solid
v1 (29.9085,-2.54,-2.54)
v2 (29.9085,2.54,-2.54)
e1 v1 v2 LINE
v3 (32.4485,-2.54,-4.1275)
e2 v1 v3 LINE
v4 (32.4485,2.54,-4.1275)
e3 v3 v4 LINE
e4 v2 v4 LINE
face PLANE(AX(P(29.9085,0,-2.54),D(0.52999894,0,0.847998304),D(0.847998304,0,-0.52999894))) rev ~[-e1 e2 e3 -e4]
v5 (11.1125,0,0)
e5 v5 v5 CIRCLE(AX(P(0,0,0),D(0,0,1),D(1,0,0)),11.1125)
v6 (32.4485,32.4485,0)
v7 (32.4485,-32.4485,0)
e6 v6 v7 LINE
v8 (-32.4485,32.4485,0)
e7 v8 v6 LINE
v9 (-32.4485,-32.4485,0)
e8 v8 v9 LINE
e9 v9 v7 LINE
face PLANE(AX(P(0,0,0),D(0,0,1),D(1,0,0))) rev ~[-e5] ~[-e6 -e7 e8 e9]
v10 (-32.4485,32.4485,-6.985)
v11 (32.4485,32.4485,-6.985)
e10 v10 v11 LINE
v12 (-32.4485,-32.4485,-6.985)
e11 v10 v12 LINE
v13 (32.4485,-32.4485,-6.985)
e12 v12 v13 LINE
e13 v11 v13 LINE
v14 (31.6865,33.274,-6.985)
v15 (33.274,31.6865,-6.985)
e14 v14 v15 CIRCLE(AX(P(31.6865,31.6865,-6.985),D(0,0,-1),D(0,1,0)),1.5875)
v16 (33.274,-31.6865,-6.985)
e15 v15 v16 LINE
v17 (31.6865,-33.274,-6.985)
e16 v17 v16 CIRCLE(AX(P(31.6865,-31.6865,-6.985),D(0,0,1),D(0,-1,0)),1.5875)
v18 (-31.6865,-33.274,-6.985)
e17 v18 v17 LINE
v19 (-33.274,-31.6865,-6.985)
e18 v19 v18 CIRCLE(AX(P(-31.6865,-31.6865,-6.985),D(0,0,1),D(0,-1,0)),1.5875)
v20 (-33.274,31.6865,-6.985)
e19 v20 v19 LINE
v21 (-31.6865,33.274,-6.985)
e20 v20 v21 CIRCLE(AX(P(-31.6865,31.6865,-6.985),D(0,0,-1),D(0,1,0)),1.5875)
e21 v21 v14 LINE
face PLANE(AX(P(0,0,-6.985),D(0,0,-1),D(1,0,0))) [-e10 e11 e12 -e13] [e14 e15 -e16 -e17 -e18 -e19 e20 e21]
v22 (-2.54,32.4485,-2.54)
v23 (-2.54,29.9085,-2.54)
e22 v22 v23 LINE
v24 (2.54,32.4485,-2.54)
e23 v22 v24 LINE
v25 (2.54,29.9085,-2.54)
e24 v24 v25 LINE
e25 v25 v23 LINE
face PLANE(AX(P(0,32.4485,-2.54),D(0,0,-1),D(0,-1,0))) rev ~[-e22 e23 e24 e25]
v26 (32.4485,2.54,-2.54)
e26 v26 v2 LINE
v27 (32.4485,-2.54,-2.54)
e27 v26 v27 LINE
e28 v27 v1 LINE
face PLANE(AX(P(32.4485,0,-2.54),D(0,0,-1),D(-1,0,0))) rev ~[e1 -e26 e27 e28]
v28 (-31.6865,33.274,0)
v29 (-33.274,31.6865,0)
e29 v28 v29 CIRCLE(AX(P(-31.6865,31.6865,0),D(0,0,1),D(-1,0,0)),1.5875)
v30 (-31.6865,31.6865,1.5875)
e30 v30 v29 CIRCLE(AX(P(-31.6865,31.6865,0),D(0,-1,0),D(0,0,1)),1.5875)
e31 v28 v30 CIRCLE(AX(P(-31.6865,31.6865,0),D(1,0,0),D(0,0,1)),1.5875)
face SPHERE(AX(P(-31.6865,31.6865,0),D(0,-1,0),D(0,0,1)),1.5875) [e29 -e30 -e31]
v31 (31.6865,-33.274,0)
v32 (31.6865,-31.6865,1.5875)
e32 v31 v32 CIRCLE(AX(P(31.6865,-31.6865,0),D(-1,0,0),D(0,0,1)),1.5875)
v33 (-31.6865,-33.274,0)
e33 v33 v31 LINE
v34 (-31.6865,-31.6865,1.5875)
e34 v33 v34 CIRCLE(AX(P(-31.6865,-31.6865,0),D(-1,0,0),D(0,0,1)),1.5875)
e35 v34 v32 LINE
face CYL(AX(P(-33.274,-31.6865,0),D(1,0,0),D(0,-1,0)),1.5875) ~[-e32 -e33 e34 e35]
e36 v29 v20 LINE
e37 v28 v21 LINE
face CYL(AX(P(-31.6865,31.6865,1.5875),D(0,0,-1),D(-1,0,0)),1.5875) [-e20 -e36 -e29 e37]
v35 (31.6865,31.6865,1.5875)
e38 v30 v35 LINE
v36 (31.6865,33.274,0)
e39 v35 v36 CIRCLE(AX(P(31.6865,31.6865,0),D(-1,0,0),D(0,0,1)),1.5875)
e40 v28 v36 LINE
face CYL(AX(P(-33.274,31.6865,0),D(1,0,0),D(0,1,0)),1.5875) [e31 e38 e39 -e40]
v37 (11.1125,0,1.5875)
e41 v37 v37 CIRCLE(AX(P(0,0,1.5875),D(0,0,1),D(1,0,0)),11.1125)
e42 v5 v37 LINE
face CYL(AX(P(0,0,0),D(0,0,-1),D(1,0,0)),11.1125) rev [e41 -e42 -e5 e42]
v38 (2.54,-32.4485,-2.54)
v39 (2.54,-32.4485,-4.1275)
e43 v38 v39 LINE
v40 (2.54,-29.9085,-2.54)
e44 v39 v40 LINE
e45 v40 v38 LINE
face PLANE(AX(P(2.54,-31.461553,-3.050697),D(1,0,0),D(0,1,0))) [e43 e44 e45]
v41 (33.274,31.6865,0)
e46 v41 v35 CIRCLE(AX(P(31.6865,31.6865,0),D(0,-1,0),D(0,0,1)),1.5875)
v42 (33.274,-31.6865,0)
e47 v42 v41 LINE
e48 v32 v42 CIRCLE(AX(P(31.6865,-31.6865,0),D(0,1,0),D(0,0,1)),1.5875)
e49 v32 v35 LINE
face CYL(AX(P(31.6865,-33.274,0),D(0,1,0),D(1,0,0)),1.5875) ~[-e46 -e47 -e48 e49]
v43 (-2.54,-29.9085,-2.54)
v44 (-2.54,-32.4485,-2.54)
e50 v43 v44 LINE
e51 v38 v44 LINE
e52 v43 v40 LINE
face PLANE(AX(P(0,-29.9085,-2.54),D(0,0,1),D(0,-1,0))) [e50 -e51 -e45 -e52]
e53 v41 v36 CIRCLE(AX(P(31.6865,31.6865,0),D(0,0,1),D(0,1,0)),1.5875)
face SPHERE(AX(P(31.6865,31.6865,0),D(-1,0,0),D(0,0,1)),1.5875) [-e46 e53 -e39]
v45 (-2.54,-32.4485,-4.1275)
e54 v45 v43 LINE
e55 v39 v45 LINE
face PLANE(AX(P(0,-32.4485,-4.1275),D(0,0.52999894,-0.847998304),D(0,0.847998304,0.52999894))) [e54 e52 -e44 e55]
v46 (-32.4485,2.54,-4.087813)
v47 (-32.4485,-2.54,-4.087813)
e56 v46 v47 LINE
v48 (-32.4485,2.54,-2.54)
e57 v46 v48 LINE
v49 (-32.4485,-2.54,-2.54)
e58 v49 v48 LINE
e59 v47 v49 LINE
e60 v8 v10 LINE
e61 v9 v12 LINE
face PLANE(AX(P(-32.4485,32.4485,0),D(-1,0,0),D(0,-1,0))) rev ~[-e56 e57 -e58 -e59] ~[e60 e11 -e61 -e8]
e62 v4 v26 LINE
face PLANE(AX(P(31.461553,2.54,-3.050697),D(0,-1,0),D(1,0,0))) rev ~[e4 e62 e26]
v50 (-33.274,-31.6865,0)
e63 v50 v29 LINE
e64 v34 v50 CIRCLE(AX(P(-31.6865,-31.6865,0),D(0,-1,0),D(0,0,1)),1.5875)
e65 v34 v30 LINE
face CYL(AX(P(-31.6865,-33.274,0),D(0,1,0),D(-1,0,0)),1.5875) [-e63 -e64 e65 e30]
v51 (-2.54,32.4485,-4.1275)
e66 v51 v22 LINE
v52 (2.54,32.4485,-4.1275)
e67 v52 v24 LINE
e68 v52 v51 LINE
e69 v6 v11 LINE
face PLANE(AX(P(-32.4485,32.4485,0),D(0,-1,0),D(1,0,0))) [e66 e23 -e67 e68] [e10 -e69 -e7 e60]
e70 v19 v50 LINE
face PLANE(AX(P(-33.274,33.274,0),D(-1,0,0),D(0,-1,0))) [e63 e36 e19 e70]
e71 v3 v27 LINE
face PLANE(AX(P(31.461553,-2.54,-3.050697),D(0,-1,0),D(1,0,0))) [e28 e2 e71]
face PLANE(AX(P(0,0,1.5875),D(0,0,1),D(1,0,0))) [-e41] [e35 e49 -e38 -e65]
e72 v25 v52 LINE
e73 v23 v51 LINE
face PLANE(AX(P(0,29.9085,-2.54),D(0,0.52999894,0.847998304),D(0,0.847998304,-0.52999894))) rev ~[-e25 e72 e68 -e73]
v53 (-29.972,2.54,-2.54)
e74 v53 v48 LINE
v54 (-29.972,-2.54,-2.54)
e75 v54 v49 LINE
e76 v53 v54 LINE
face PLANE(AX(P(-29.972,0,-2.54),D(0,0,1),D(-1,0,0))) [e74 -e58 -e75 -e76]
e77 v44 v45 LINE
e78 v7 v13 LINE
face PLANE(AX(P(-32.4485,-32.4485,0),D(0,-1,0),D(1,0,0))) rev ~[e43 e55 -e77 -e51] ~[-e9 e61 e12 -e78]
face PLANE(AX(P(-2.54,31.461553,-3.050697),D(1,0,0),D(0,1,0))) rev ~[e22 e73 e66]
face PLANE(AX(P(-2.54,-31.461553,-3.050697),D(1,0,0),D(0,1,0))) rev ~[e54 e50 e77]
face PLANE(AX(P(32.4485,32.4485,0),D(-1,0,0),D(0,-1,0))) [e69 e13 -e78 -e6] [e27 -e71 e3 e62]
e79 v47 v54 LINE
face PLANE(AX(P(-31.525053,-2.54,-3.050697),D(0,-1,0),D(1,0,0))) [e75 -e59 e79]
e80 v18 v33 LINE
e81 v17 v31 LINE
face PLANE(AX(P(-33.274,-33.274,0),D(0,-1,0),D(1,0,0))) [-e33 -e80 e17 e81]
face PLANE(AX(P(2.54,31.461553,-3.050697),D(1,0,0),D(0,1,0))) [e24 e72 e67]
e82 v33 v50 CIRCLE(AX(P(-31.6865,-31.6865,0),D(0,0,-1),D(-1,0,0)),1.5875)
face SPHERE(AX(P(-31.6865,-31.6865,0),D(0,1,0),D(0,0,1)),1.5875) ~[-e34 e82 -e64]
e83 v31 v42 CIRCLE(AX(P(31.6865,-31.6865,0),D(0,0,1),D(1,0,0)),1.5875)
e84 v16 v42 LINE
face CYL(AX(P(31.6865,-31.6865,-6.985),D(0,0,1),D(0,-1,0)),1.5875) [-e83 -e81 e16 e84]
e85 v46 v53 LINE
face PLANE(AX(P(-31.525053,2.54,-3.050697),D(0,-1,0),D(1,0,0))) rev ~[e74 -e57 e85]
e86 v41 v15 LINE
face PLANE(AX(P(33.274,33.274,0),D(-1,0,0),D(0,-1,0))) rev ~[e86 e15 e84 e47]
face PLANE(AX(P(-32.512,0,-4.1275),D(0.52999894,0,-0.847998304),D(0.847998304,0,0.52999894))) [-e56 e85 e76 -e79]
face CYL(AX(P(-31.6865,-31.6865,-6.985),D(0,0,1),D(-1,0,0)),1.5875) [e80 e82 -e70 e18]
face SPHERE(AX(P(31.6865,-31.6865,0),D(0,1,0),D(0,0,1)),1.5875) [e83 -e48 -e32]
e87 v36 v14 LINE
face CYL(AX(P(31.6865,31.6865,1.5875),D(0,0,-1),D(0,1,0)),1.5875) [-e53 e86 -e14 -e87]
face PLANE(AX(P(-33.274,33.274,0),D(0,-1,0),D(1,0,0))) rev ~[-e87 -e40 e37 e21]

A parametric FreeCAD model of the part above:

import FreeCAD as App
import Part
import Sketcher
Q = App.Units.Quantity


def edges_at(feature, points):
    """Names of the edges that pass closest to the given points."""
    edges = feature.Shape.Edges
    near = lambda p: min(range(len(edges)), key=lambda i: edges[i].distToShape(Part.Vertex(*p))[0])
    return sorted({f"Edge{near(p) + 1}" for p in points})

doc = App.newDocument("Part")
body = doc.addObject("PartDesign::Body", "Body")

# Sketch on XY plane
sketch1 = doc.addObject("Sketcher::SketchObject", "Sketch")
body.addObject(sketch1)
sketch1.AttachmentSupport = (doc.XY_Plane, [""])
sketch1.MapMode = "FlatFace"
sketch1.addGeometry([
    Part.LineSegment(App.Vector(-33, 33, 0), App.Vector(-33, -33, 0)),  # 0
    Part.LineSegment(App.Vector(-33, -33, 0), App.Vector(33, -33, 0)),  # 1
    Part.LineSegment(App.Vector(33, -33, 0), App.Vector(33, 33, 0)),  # 2
    Part.LineSegment(App.Vector(33, 33, 0), App.Vector(-33, 33, 0)),  # 3
    Part.Circle(App.Vector(0, 0, 0), App.Vector(0, 0, 1), 11),  # 4
], False)
sketch1.addConstraint([
    Sketcher.Constraint("Coincident", 0, 2, 1, 1),
    Sketcher.Constraint("Coincident", 1, 2, 2, 1),
    Sketcher.Constraint("Coincident", 2, 2, 3, 1),
    Sketcher.Constraint("Coincident", 3, 2, 0, 1),
    Sketcher.Constraint("Vertical", 0),
    Sketcher.Constraint("Horizontal", 1),
    Sketcher.Constraint("Vertical", 2),
    Sketcher.Constraint("Horizontal", 3),
    Sketcher.Constraint("Coincident", 4, 3, -1, 1),
    Sketcher.Constraint("Symmetric", 0, 2, 2, 2, -1, 1),
    Sketcher.Constraint("Equal", 3, 0),
    Sketcher.Constraint("Diameter", 4, Q("0.875 in")),
    Sketcher.Constraint("DistanceX", 1, 1, 1, 2, Q("2.62 in")),
])
pad1 = doc.addObject("PartDesign::Pad", "Pad")
body.addObject(pad1)
pad1.Profile = sketch1
pad1.Length = Q("0.0625 in")

# Sketch on XY plane
sketch2 = doc.addObject("Sketcher::SketchObject", "Sketch001")
body.addObject(sketch2)
sketch2.AttachmentSupport = (doc.XY_Plane, [""])
sketch2.MapMode = "FlatFace"
sketch2.addGeometry([
    Part.LineSegment(App.Vector(-33, -33, 0), App.Vector(-33, 33, 0)),  # 0
    Part.LineSegment(App.Vector(-33, 33, 0), App.Vector(33, 33, 0)),  # 1
    Part.LineSegment(App.Vector(33, 33, 0), App.Vector(33, -33, 0)),  # 2
    Part.LineSegment(App.Vector(33, -33, 0), App.Vector(-33, -33, 0)),  # 3
    Part.LineSegment(App.Vector(32, 32, 0), App.Vector(-32, 32, 0)),  # 4
    Part.LineSegment(App.Vector(-32, 32, 0), App.Vector(-32, -32, 0)),  # 5
    Part.LineSegment(App.Vector(-32, -32, 0), App.Vector(32, -32, 0)),  # 6
    Part.LineSegment(App.Vector(32, -32, 0), App.Vector(32, 32, 0)),  # 7
], False)
sketch2.addConstraint([
    Sketcher.Constraint("Coincident", 0, 2, 1, 1),
    Sketcher.Constraint("Coincident", 1, 2, 2, 1),
    Sketcher.Constraint("Coincident", 2, 2, 3, 1),
    Sketcher.Constraint("Coincident", 3, 2, 0, 1),
    Sketcher.Constraint("Coincident", 4, 2, 5, 1),
    Sketcher.Constraint("Coincident", 5, 2, 6, 1),
    Sketcher.Constraint("Coincident", 6, 2, 7, 1),
    Sketcher.Constraint("Coincident", 7, 2, 4, 1),
    Sketcher.Constraint("Vertical", 0),
    Sketcher.Constraint("Horizontal", 1),
    Sketcher.Constraint("Vertical", 2),
    Sketcher.Constraint("Horizontal", 3),
    Sketcher.Constraint("Horizontal", 4),
    Sketcher.Constraint("Vertical", 5),
    Sketcher.Constraint("Horizontal", 6),
    Sketcher.Constraint("Vertical", 7),
    Sketcher.Constraint("Symmetric", 0, 2, 2, 2, -1, 1),
    Sketcher.Constraint("Symmetric", 4, 2, 6, 2, -1, 1),
    Sketcher.Constraint("Equal", 3, 0),
    Sketcher.Constraint("Equal", 6, 5),
    Sketcher.Constraint("DistanceX", 1, 1, 1, 2, Q("2.62 in")),
    Sketcher.Constraint("DistanceX", 4, 2, 4, 1, Q("2.555 in")),
])
pad2 = doc.addObject("PartDesign::Pad", "Pad001")
body.addObject(pad2)
pad2.Profile = sketch2
pad2.Length = Q("0.275 in")
pad2.Reversed = True

# Sketch on XZ plane
sketch3 = doc.addObject("Sketcher::SketchObject", "Sketch002")
body.addObject(sketch3)
sketch3.AttachmentSupport = (doc.XZ_Plane, [""])
sketch3.MapMode = "FlatFace"
sketch3.addGeometry([
    Part.LineSegment(App.Vector(32.4, -4.1, 0), App.Vector(32.4, -2.5, 0)),  # 0
    Part.LineSegment(App.Vector(32.4, -2.5, 0), App.Vector(29.9, -2.5, 0)),  # 1
    Part.LineSegment(App.Vector(29.9, -2.5, 0), App.Vector(32.4, -4.1, 0)),  # 2
    Part.LineSegment(App.Vector(-32.5, -4.1, 0), App.Vector(-30, -2.5, 0)),  # 3
    Part.LineSegment(App.Vector(-30, -2.5, 0), App.Vector(-32.5, -2.5, 0)),  # 4
    Part.LineSegment(App.Vector(-32.5, -2.5, 0), App.Vector(-32.5, -4.1, 0)),  # 5
], False)
sketch3.addConstraint([
    Sketcher.Constraint("Coincident", 0, 2, 1, 1),
    Sketcher.Constraint("Coincident", 1, 2, 2, 1),
    Sketcher.Constraint("Coincident", 2, 2, 0, 1),
    Sketcher.Constraint("Coincident", 3, 2, 4, 1),
    Sketcher.Constraint("Coincident", 4, 2, 5, 1),
    Sketcher.Constraint("Coincident", 5, 2, 3, 1),
    Sketcher.Constraint("Vertical", 0),
    Sketcher.Constraint("Horizontal", 1),
    Sketcher.Constraint("Horizontal", 4),
    Sketcher.Constraint("Vertical", 5),
    Sketcher.Constraint("Horizontal", 1, 2, 3, 2),
    Sketcher.Constraint("Horizontal", 2, 2, 5, 2),
    Sketcher.Constraint("Equal", 1, 4),
    Sketcher.Constraint("DistanceX", 1, 2, 1, 1, Q("0.1 in")),
    Sketcher.Constraint("DistanceY", 0, 2, -1, 1, Q("0.1 in")),
    Sketcher.Constraint("DistanceY", 0, 1, 0, 2, Q("0.0625 in")),
    Sketcher.Constraint("DistanceX", 3, 2, -1, 1, Q("1.18 in")),
    Sketcher.Constraint("DistanceX", -1, 1, 0, 2, Q("1.2775 in")),
])
pad3 = doc.addObject("PartDesign::Pad", "Pad002")
body.addObject(pad3)
pad3.Profile = sketch3
pad3.Length = Q("0.2 in")
pad3.Midplane = True

# Sketch on YZ plane
sketch4 = doc.addObject("Sketcher::SketchObject", "Sketch003")
body.addObject(sketch4)
sketch4.AttachmentSupport = (doc.YZ_Plane, [""])
sketch4.MapMode = "FlatFace"
sketch4.addGeometry([
    Part.LineSegment(App.Vector(32.4, -4.1, 0), App.Vector(32.4, -2.5, 0)),  # 0
    Part.LineSegment(App.Vector(32.4, -2.5, 0), App.Vector(29.9, -2.5, 0)),  # 1
    Part.LineSegment(App.Vector(29.9, -2.5, 0), App.Vector(32.4, -4.1, 0)),  # 2
    Part.LineSegment(App.Vector(-32.4, -4.1, 0), App.Vector(-29.9, -2.5, 0)),  # 3
    Part.LineSegment(App.Vector(-29.9, -2.5, 0), App.Vector(-32.4, -2.5, 0)),  # 4
    Part.LineSegment(App.Vector(-32.4, -2.5, 0), App.Vector(-32.4, -4.1, 0)),  # 5
], False)
sketch4.addConstraint([
    Sketcher.Constraint("Coincident", 0, 2, 1, 1),
    Sketcher.Constraint("Coincident", 1, 2, 2, 1),
    Sketcher.Constraint("Coincident", 2, 2, 0, 1),
    Sketcher.Constraint("Coincident", 3, 2, 4, 1),
    Sketcher.Constraint("Coincident", 4, 2, 5, 1),
    Sketcher.Constraint("Coincident", 5, 2, 3, 1),
    Sketcher.Constraint("Vertical", 0),
    Sketcher.Constraint("Horizontal", 1),
    Sketcher.Constraint("Horizontal", 4),
    Sketcher.Constraint("Vertical", 5),
    Sketcher.Constraint("Symmetric", 1, 2, 3, 2, -2),
    Sketcher.Constraint("Symmetric", 2, 2, 5, 2, -2),
    Sketcher.Constraint("DistanceX", 1, 2, 1, 1, Q("0.1 in")),
    Sketcher.Constraint("DistanceY", 0, 2, -1, 1, Q("0.1 in")),
    Sketcher.Constraint("DistanceY", 0, 1, 0, 2, Q("0.0625 in")),
    Sketcher.Constraint("DistanceX", 3, 2, 1, 2, Q("2.355 in")),
])
pad4 = doc.addObject("PartDesign::Pad", "Pad003")
body.addObject(pad4)
pad4.Profile = sketch4
pad4.Length = Q("0.2 in")
pad4.Midplane = True
doc.recompute()

fillet = doc.addObject("PartDesign::Fillet", "Fillet")
body.addObject(fillet)
fillet.Base = (pad4, edges_at(pad4, [
    (-33.274, 0, 1.587),
    (0, 33.274, 1.587),
    (33.274, 0, 1.587),
    (0, -33.274, 1.587),
    (-33.274, 33.274, -2.699),
    (-33.274, -33.274, -2.699),
    (33.274, -33.274, -2.699),
    (33.274, 33.274, -2.699),
]))
fillet.Radius = Q("0.0625 in")

doc.recompute()
